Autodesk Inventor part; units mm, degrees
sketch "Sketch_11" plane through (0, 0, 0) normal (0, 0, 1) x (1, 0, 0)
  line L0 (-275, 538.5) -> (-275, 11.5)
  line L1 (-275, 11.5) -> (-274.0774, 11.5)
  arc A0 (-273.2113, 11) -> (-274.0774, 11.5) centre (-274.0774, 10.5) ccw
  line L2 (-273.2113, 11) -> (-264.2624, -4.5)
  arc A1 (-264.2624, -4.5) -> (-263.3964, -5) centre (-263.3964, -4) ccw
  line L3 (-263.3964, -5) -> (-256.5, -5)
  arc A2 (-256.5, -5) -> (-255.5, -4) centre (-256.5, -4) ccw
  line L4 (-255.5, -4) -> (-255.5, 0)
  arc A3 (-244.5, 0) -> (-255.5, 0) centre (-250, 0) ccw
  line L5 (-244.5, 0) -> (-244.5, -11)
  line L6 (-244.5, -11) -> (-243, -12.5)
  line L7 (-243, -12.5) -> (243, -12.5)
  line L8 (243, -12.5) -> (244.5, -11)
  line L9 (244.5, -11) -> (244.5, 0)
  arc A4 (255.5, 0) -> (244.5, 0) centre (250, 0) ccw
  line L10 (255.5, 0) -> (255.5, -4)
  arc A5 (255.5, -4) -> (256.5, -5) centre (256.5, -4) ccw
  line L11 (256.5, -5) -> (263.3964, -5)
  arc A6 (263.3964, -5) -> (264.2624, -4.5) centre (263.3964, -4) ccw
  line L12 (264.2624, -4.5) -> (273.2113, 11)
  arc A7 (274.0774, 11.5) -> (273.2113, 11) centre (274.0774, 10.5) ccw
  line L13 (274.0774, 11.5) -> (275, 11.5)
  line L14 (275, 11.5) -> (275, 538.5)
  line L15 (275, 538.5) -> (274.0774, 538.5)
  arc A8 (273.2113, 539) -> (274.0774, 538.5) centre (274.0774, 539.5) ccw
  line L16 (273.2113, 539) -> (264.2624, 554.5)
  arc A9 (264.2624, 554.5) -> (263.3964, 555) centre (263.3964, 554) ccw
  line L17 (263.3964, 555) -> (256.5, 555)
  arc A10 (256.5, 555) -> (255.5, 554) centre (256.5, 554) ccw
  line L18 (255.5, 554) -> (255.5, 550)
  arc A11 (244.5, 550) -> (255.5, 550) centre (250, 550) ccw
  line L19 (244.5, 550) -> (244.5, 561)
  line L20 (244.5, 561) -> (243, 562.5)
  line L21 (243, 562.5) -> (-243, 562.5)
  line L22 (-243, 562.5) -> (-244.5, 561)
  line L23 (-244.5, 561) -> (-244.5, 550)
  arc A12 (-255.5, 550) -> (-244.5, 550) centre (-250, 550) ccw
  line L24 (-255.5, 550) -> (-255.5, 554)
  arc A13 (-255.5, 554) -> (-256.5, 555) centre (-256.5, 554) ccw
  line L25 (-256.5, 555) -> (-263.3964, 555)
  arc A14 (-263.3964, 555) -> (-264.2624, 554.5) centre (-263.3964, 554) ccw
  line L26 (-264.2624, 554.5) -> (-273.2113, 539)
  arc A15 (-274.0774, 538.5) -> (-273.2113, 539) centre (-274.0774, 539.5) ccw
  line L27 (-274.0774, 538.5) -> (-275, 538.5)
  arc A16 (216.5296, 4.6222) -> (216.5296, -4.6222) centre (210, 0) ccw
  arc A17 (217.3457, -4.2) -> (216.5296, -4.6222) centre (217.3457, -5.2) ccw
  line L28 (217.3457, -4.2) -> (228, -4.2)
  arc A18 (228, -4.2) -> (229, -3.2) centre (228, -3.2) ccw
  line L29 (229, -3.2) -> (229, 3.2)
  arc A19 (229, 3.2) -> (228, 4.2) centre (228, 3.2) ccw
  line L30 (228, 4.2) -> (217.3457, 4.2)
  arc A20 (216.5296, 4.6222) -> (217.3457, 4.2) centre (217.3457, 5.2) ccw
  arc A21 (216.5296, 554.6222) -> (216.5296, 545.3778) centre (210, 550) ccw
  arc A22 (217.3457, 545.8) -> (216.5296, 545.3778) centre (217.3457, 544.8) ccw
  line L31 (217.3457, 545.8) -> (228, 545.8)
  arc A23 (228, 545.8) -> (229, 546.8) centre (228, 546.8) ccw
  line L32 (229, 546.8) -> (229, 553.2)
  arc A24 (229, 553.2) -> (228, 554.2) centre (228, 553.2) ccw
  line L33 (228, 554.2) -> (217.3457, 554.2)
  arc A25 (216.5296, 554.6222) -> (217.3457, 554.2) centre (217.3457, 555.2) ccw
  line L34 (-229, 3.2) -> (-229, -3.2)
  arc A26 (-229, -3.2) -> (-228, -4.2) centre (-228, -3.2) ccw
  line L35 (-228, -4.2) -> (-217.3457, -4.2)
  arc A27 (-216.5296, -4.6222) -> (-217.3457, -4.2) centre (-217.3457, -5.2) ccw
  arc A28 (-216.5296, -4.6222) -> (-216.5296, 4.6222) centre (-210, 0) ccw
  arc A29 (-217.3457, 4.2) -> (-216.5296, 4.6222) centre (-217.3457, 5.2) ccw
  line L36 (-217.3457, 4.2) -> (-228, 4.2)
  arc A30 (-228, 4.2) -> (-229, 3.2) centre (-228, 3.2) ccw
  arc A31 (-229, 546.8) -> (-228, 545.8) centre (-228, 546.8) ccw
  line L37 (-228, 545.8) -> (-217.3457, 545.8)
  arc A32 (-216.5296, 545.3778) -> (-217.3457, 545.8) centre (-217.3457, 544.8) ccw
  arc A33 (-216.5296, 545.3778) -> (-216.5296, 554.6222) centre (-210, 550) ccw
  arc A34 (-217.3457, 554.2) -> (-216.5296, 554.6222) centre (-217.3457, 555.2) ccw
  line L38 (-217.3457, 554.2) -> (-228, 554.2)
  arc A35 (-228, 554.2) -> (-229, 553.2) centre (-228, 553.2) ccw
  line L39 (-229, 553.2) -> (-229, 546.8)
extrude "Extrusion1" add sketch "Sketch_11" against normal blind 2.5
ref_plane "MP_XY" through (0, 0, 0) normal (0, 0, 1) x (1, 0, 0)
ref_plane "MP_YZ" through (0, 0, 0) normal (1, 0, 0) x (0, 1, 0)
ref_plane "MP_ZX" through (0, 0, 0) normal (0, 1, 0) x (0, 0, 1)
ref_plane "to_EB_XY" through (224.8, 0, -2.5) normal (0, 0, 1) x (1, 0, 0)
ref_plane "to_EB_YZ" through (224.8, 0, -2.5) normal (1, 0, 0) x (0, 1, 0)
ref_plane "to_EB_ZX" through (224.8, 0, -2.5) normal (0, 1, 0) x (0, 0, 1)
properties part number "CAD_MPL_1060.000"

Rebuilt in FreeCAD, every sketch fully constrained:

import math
import FreeCAD as App
import Part
import Sketcher
from FreeCAD import Vector
Q = App.Units.Quantity

doc = App.newDocument("Part")
params = doc.addObject("Spreadsheet::Sheet", "Params")
for row, (alias, value) in enumerate([
    ("sketch1_radius", "1 mm"),
    ("sketch1_radius2", "8 mm"),
    ("sketch1_radius3", "5.5 mm"),
    ("sketch1_width", "486 mm"),
    ("sketch1_height", "527 mm"),
    ("pad1_length", "2.5 mm"),
], start=1):
    params.set(f"A{row}", alias)
    params.set(f"B{row}", "=" + value)
    params.setAlias(f"B{row}", alias)

body = doc.addObject("PartDesign::Body", "Body")

# Sketch on XY plane
sketch1 = body.newObject("Sketcher::SketchObject", "Sketch")
sketch1.AttachmentSupport = (doc.getObject("XY_Plane"), [""])
sketch1.MapMode = "FlatFace"
sketch1.addGeometry([
    Part.LineSegment(Vector(-274.1, 538.5, 0), Vector(-275, 538.5, 0)),  # 0
    Part.LineSegment(Vector(-275, 538.5, 0), Vector(-275, 11.5, 0)),  # 1
    Part.LineSegment(Vector(-275, 11.5, 0), Vector(-274.1, 11.5, 0)),  # 2
    Part.ArcOfCircle(Part.Circle(Vector(-274.1, 10.5, 0), Vector(0, 0, 1), 1), math.radians(30), math.radians(90)),  # 3
    Part.LineSegment(Vector(-273.2, 11, 0), Vector(-264.3, -4.5, 0)),  # 4
    Part.ArcOfCircle(Part.Circle(Vector(-263.4, -4, 0), Vector(0, 0, 1), 1), math.radians(-150), math.radians(-90)),  # 5
    Part.LineSegment(Vector(-263.4, -5, 0), Vector(-256.5, -5, 0)),  # 6
    Part.ArcOfCircle(Part.Circle(Vector(-256.5, -4, 0), Vector(0, 0, 1), 1), math.radians(-90), math.radians(0)),  # 7
    Part.LineSegment(Vector(-255.5, -4, 0), Vector(-255.5, 0, 0)),  # 8
    Part.ArcOfCircle(Part.Circle(Vector(-250, 0, 0), Vector(0, 0, 1), 5.5), math.radians(0), math.radians(180)),  # 9
    Part.LineSegment(Vector(-244.5, 0, 0), Vector(-244.5, -11, 0)),  # 10
    Part.LineSegment(Vector(-244.5, -11, 0), Vector(-243, -12.5, 0)),  # 11
    Part.LineSegment(Vector(-243, -12.5, 0), Vector(243, -12.5, 0)),  # 12
    Part.LineSegment(Vector(243, -12.5, 0), Vector(244.5, -11, 0)),  # 13
    Part.LineSegment(Vector(244.5, -11, 0), Vector(244.5, 0, 0)),  # 14
    Part.ArcOfCircle(Part.Circle(Vector(250, 0, 0), Vector(0, 0, 1), 5.5), math.radians(0), math.radians(180)),  # 15
    Part.LineSegment(Vector(255.5, 0, 0), Vector(255.5, -4, 0)),  # 16
    Part.ArcOfCircle(Part.Circle(Vector(256.5, -4, 0), Vector(0, 0, 1), 1), math.radians(180), math.radians(270)),  # 17
    Part.LineSegment(Vector(256.5, -5, 0), Vector(263.4, -5, 0)),  # 18
    Part.ArcOfCircle(Part.Circle(Vector(263.4, -4, 0), Vector(0, 0, 1), 1), math.radians(-90), math.radians(-30)),  # 19
    Part.LineSegment(Vector(264.3, -4.5, 0), Vector(273.2, 11, 0)),  # 20
    Part.ArcOfCircle(Part.Circle(Vector(274.1, 10.5, 0), Vector(0, 0, 1), 1), math.radians(90), math.radians(150)),  # 21
    Part.LineSegment(Vector(274.1, 11.5, 0), Vector(275, 11.5, 0)),  # 22
    Part.LineSegment(Vector(275, 11.5, 0), Vector(275, 538.5, 0)),  # 23
    Part.LineSegment(Vector(275, 538.5, 0), Vector(274.1, 538.5, 0)),  # 24
    Part.ArcOfCircle(Part.Circle(Vector(274.1, 539.5, 0), Vector(0, 0, 1), 1), math.radians(-150), math.radians(-90)),  # 25
    Part.LineSegment(Vector(273.2, 539, 0), Vector(264.3, 554.5, 0)),  # 26
    Part.ArcOfCircle(Part.Circle(Vector(263.4, 554, 0), Vector(0, 0, 1), 1), math.radians(30), math.radians(90)),  # 27
    Part.LineSegment(Vector(263.4, 555, 0), Vector(256.5, 555, 0)),  # 28
    Part.ArcOfCircle(Part.Circle(Vector(256.5, 554, 0), Vector(0, 0, 1), 1), math.radians(90), math.radians(180)),  # 29
    Part.LineSegment(Vector(255.5, 554, 0), Vector(255.5, 550, 0)),  # 30
    Part.ArcOfCircle(Part.Circle(Vector(250, 550, 0), Vector(0, 0, 1), 5.5), math.radians(180), math.radians(360)),  # 31
    Part.LineSegment(Vector(244.5, 550, 0), Vector(244.5, 561, 0)),  # 32
    Part.LineSegment(Vector(244.5, 561, 0), Vector(243, 562.5, 0)),  # 33
    Part.LineSegment(Vector(243, 562.5, 0), Vector(-243, 562.5, 0)),  # 34
    Part.LineSegment(Vector(-243, 562.5, 0), Vector(-244.5, 561, 0)),  # 35
    Part.LineSegment(Vector(-244.5, 561, 0), Vector(-244.5, 550, 0)),  # 36
    Part.ArcOfCircle(Part.Circle(Vector(-250, 550, 0), Vector(0, 0, 1), 5.5), math.radians(180), math.radians(360)),  # 37
    Part.LineSegment(Vector(-255.5, 550, 0), Vector(-255.5, 554, 0)),  # 38
    Part.ArcOfCircle(Part.Circle(Vector(-256.5, 554, 0), Vector(0, 0, 1), 1), math.radians(0), math.radians(90)),  # 39
    Part.LineSegment(Vector(-256.5, 555, 0), Vector(-263.4, 555, 0)),  # 40
    Part.ArcOfCircle(Part.Circle(Vector(-263.4, 554, 0), Vector(0, 0, 1), 1), math.radians(90), math.radians(150)),  # 41
    Part.LineSegment(Vector(-264.3, 554.5, 0), Vector(-273.2, 539, 0)),  # 42
    Part.ArcOfCircle(Part.Circle(Vector(-274.1, 539.5, 0), Vector(0, 0, 1), 1), math.radians(-90), math.radians(-30)),  # 43
    Part.LineSegment(Vector(-229, -3.2, 0), Vector(-229, 3.2, 0)),  # 44
    Part.ArcOfCircle(Part.Circle(Vector(-228, 3.2, 0), Vector(0, 0, 1), 1), math.radians(90), math.radians(180)),  # 45
    Part.LineSegment(Vector(-228, 4.2, 0), Vector(-217.3, 4.2, 0)),  # 46
    Part.ArcOfCircle(Part.Circle(Vector(-217.3, 5.2, 0), Vector(0, 0, 1), 1), math.radians(-90), math.radians(-35)),  # 47
    Part.ArcOfCircle(Part.Circle(Vector(-210, 0, 0), Vector(0, 0, 1), 8), math.radians(-145), math.radians(145)),  # 48
    Part.ArcOfCircle(Part.Circle(Vector(-217.3, -5.2, 0), Vector(0, 0, 1), 1), math.radians(35), math.radians(90)),  # 49
    Part.LineSegment(Vector(-217.3, -4.2, 0), Vector(-228, -4.2, 0)),  # 50
    Part.ArcOfCircle(Part.Circle(Vector(-228, -3.2, 0), Vector(0, 0, 1), 1), math.radians(180), math.radians(270)),  # 51
    Part.ArcOfCircle(Part.Circle(Vector(210, 0, 0), Vector(0, 0, 1), 8), math.radians(35), math.radians(325)),  # 52
    Part.ArcOfCircle(Part.Circle(Vector(217.3, 5.2, 0), Vector(0, 0, 1), 1), math.radians(-145), math.radians(-90)),  # 53
    Part.LineSegment(Vector(217.3, 4.2, 0), Vector(228, 4.2, 0)),  # 54
    Part.ArcOfCircle(Part.Circle(Vector(228, 3.2, 0), Vector(0, 0, 1), 1), math.radians(0), math.radians(90)),  # 55
    Part.LineSegment(Vector(229, 3.2, 0), Vector(229, -3.2, 0)),  # 56
    Part.ArcOfCircle(Part.Circle(Vector(228, -3.2, 0), Vector(0, 0, 1), 1), math.radians(-90), math.radians(0)),  # 57
    Part.LineSegment(Vector(228, -4.2, 0), Vector(217.3, -4.2, 0)),  # 58
    Part.ArcOfCircle(Part.Circle(Vector(217.3, -5.2, 0), Vector(0, 0, 1), 1), math.radians(90), math.radians(145)),  # 59
    Part.ArcOfCircle(Part.Circle(Vector(-228, 546.8, 0), Vector(0, 0, 1), 1), math.radians(180), math.radians(270)),  # 60
    Part.LineSegment(Vector(-229, 546.8, 0), Vector(-229, 553.2, 0)),  # 61
    Part.ArcOfCircle(Part.Circle(Vector(-228, 553.2, 0), Vector(0, 0, 1), 1), math.radians(90), math.radians(180)),  # 62
    Part.LineSegment(Vector(-228, 554.2, 0), Vector(-217.3, 554.2, 0)),  # 63
    Part.ArcOfCircle(Part.Circle(Vector(-217.3, 555.2, 0), Vector(0, 0, 1), 1), math.radians(-90), math.radians(-35)),  # 64
    Part.ArcOfCircle(Part.Circle(Vector(-210, 550, 0), Vector(0, 0, 1), 8), math.radians(-145), math.radians(145)),  # 65
    Part.ArcOfCircle(Part.Circle(Vector(-217.3, 544.8, 0), Vector(0, 0, 1), 1), math.radians(35), math.radians(90)),  # 66
    Part.LineSegment(Vector(-217.3, 545.8, 0), Vector(-228, 545.8, 0)),  # 67
    Part.ArcOfCircle(Part.Circle(Vector(210, 550, 0), Vector(0, 0, 1), 8), math.radians(35), math.radians(325)),  # 68
    Part.ArcOfCircle(Part.Circle(Vector(217.3, 555.2, 0), Vector(0, 0, 1), 1), math.radians(-145), math.radians(-90)),  # 69
    Part.LineSegment(Vector(217.3, 554.2, 0), Vector(228, 554.2, 0)),  # 70
    Part.ArcOfCircle(Part.Circle(Vector(228, 553.2, 0), Vector(0, 0, 1), 1), math.radians(0), math.radians(90)),  # 71
    Part.LineSegment(Vector(229, 553.2, 0), Vector(229, 546.8, 0)),  # 72
    Part.ArcOfCircle(Part.Circle(Vector(228, 546.8, 0), Vector(0, 0, 1), 1), math.radians(-90), math.radians(0)),  # 73
    Part.LineSegment(Vector(228, 545.8, 0), Vector(217.3, 545.8, 0)),  # 74
    Part.ArcOfCircle(Part.Circle(Vector(217.3, 544.8, 0), Vector(0, 0, 1), 1), math.radians(90), math.radians(145)),  # 75
], False)
sketch1.addConstraint([
    Sketcher.Constraint("Coincident", 0, 2, 1, 1),
    Sketcher.Constraint("Coincident", 1, 2, 2, 1),
    Sketcher.Constraint("Tangent", 2, 2, 3, 2),
    Sketcher.Constraint("Tangent", 3, 1, 4, 1),
    Sketcher.Constraint("Tangent", 4, 2, 5, 1),
    Sketcher.Constraint("Tangent", 5, 2, 6, 1),
    Sketcher.Constraint("Tangent", 6, 2, 7, 1),
    Sketcher.Constraint("Tangent", 7, 2, 8, 1),
    Sketcher.Constraint("Tangent", 8, 2, 9, 2),
    Sketcher.Constraint("Tangent", 9, 1, 10, 1),
    Sketcher.Constraint("Coincident", 10, 2, 11, 1),
    Sketcher.Constraint("Coincident", 11, 2, 12, 1),
    Sketcher.Constraint("Coincident", 12, 2, 13, 1),
    Sketcher.Constraint("Coincident", 13, 2, 14, 1),
    Sketcher.Constraint("Tangent", 14, 2, 15, 2),
    Sketcher.Constraint("Tangent", 15, 1, 16, 1),
    Sketcher.Constraint("Tangent", 16, 2, 17, 1),
    Sketcher.Constraint("Tangent", 17, 2, 18, 1),
    Sketcher.Constraint("Tangent", 18, 2, 19, 1),
    Sketcher.Constraint("Tangent", 19, 2, 20, 1),
    Sketcher.Constraint("Tangent", 20, 2, 21, 2),
    Sketcher.Constraint("Tangent", 21, 1, 22, 1),
    Sketcher.Constraint("Coincident", 22, 2, 23, 1),
    Sketcher.Constraint("Coincident", 23, 2, 24, 1),
    Sketcher.Constraint("Tangent", 24, 2, 25, 2),
    Sketcher.Constraint("Tangent", 25, 1, 26, 1),
    Sketcher.Constraint("Tangent", 26, 2, 27, 1),
    Sketcher.Constraint("Tangent", 27, 2, 28, 1),
    Sketcher.Constraint("Tangent", 28, 2, 29, 1),
    Sketcher.Constraint("Tangent", 29, 2, 30, 1),
    Sketcher.Constraint("Tangent", 30, 2, 31, 2),
    Sketcher.Constraint("Tangent", 31, 1, 32, 1),
    Sketcher.Constraint("Coincident", 32, 2, 33, 1),
    Sketcher.Constraint("Coincident", 33, 2, 34, 1),
    Sketcher.Constraint("Coincident", 34, 2, 35, 1),
    Sketcher.Constraint("Coincident", 35, 2, 36, 1),
    Sketcher.Constraint("Tangent", 36, 2, 37, 2),
    Sketcher.Constraint("Tangent", 37, 1, 38, 1),
    Sketcher.Constraint("Tangent", 38, 2, 39, 1),
    Sketcher.Constraint("Tangent", 39, 2, 40, 1),
    Sketcher.Constraint("Tangent", 40, 2, 41, 1),
    Sketcher.Constraint("Tangent", 41, 2, 42, 1),
    Sketcher.Constraint("Tangent", 42, 2, 43, 2),
    Sketcher.Constraint("Tangent", 43, 1, 0, 1),
    Sketcher.Constraint("Tangent", 44, 2, 45, 2),
    Sketcher.Constraint("Tangent", 45, 1, 46, 1),
    Sketcher.Constraint("Tangent", 46, 2, 47, 1),
    Sketcher.Constraint("Tangent", 47, 2, 48, 2),
    Sketcher.Constraint("Tangent", 48, 1, 49, 1),
    Sketcher.Constraint("Tangent", 49, 2, 50, 1),
    Sketcher.Constraint("Tangent", 50, 2, 51, 2),
    Sketcher.Constraint("Tangent", 51, 1, 44, 1),
    Sketcher.Constraint("Tangent", 52, 1, 53, 1),
    Sketcher.Constraint("Tangent", 53, 2, 54, 1),
    Sketcher.Constraint("Tangent", 54, 2, 55, 2),
    Sketcher.Constraint("Tangent", 55, 1, 56, 1),
    Sketcher.Constraint("Tangent", 56, 2, 57, 2),
    Sketcher.Constraint("Tangent", 57, 1, 58, 1),
    Sketcher.Constraint("Tangent", 58, 2, 59, 1),
    Sketcher.Constraint("Tangent", 59, 2, 52, 2),
    Sketcher.Constraint("Tangent", 60, 1, 61, 1),
    Sketcher.Constraint("Tangent", 61, 2, 62, 2),
    Sketcher.Constraint("Tangent", 62, 1, 63, 1),
    Sketcher.Constraint("Tangent", 63, 2, 64, 1),
    Sketcher.Constraint("Tangent", 64, 2, 65, 2),
    Sketcher.Constraint("Tangent", 65, 1, 66, 1),
    Sketcher.Constraint("Tangent", 66, 2, 67, 1),
    Sketcher.Constraint("Tangent", 67, 2, 60, 2),
    Sketcher.Constraint("Tangent", 68, 1, 69, 1),
    Sketcher.Constraint("Tangent", 69, 2, 70, 1),
    Sketcher.Constraint("Tangent", 70, 2, 71, 2),
    Sketcher.Constraint("Tangent", 71, 1, 72, 1),
    Sketcher.Constraint("Tangent", 72, 2, 73, 2),
    Sketcher.Constraint("Tangent", 73, 1, 74, 1),
    Sketcher.Constraint("Tangent", 74, 2, 75, 1),
    Sketcher.Constraint("Tangent", 75, 2, 68, 2),
    Sketcher.Constraint("Horizontal", 0),
    Sketcher.Constraint("Vertical", 1),
    Sketcher.Constraint("Horizontal", 2),
    Sketcher.Constraint("Horizontal", 6),
    Sketcher.Constraint("Vertical", 8),
    Sketcher.Constraint("Vertical", 10),
    Sketcher.Constraint("Horizontal", 12),
    Sketcher.Constraint("Vertical", 14),
    Sketcher.Constraint("Vertical", 16),
    Sketcher.Constraint("Horizontal", 18),
    Sketcher.Constraint("Horizontal", 22),
    Sketcher.Constraint("Vertical", 23),
    Sketcher.Constraint("Horizontal", 24),
    Sketcher.Constraint("Horizontal", 28),
    Sketcher.Constraint("Vertical", 30),
    Sketcher.Constraint("Vertical", 32),
    Sketcher.Constraint("Horizontal", 34),
    Sketcher.Constraint("Vertical", 36),
    Sketcher.Constraint("Vertical", 38),
    Sketcher.Constraint("Horizontal", 40),
    Sketcher.Constraint("Vertical", 44),
    Sketcher.Constraint("Horizontal", 46),
    Sketcher.Constraint("Horizontal", 50),
    Sketcher.Constraint("Horizontal", 54),
    Sketcher.Constraint("Vertical", 56),
    Sketcher.Constraint("Horizontal", 58),
    Sketcher.Constraint("Vertical", 61),
    Sketcher.Constraint("Horizontal", 63),
    Sketcher.Constraint("Horizontal", 67),
    Sketcher.Constraint("Horizontal", 70),
    Sketcher.Constraint("Vertical", 72),
    Sketcher.Constraint("Horizontal", 74),
    Sketcher.Constraint("Equal", 3, 5),
    Sketcher.Constraint("Equal", 5, 7),
    Sketcher.Constraint("Equal", 9, 15),
    Sketcher.Constraint("Equal", 7, 17),
    Sketcher.Constraint("Equal", 17, 19),
    Sketcher.Constraint("Equal", 19, 21),
    Sketcher.Constraint("Equal", 21, 25),
    Sketcher.Constraint("Equal", 25, 27),
    Sketcher.Constraint("Equal", 27, 29),
    Sketcher.Constraint("Equal", 15, 31),
    Sketcher.Constraint("Equal", 31, 37),
    Sketcher.Constraint("Equal", 29, 39),
    Sketcher.Constraint("Equal", 39, 41),
    Sketcher.Constraint("Equal", 41, 43),
    Sketcher.Constraint("Equal", 43, 45),
    Sketcher.Constraint("Equal", 45, 47),
    Sketcher.Constraint("Equal", 47, 49),
    Sketcher.Constraint("Equal", 49, 51),
    Sketcher.Constraint("Equal", 48, 52),
    Sketcher.Constraint("Equal", 51, 53),
    Sketcher.Constraint("Equal", 53, 55),
    Sketcher.Constraint("Equal", 55, 57),
    Sketcher.Constraint("Equal", 57, 59),
    Sketcher.Constraint("Equal", 59, 60),
    Sketcher.Constraint("Equal", 60, 62),
    Sketcher.Constraint("Equal", 62, 64),
    Sketcher.Constraint("Equal", 52, 65),
    Sketcher.Constraint("Equal", 64, 66),
    Sketcher.Constraint("Equal", 65, 68),
    Sketcher.Constraint("Equal", 66, 69),
    Sketcher.Constraint("Equal", 69, 71),
    Sketcher.Constraint("Equal", 71, 73),
    Sketcher.Constraint("Equal", 73, 75),
    Sketcher.Constraint("Symmetric", 9, 3, 15, 3, -1, 1),
    Sketcher.Constraint("Symmetric", 48, 3, 52, 3, -1, 1),
    Sketcher.Constraint("Symmetric", 51, 3, 55, 3, -1, 1),
    Sketcher.Constraint("Symmetric", 5, 3, 19, 3, -2),
    Sketcher.Constraint("Symmetric", 3, 3, 21, 3, -2),
    Sketcher.Constraint("Symmetric", 31, 3, 37, 3, -2),
    Sketcher.Constraint("Symmetric", 27, 3, 41, 3, -2),
    Sketcher.Constraint("Symmetric", 25, 3, 43, 3, -2),
    Sketcher.Constraint("Symmetric", 47, 3, 53, 3, -2),
    Sketcher.Constraint("Symmetric", 65, 3, 68, 3, -2),
    Sketcher.Constraint("Symmetric", 62, 3, 71, 3, -2),
    Sketcher.Constraint("PointOnObject", 9, 3, -1),
    Sketcher.Constraint("Perpendicular", 11, 13),
    Sketcher.Constraint("Parallel", 4, 26),
    Sketcher.Constraint("Perpendicular", 13, 33),
    Sketcher.Constraint("Perpendicular", 33, 35),
    Sketcher.Constraint("Horizontal", 51, 3, 57, 3),
    Sketcher.Constraint("Horizontal", 37, 3, 65, 3),
    Sketcher.Constraint("Horizontal", 60, 3, 73, 3),
    Sketcher.Constraint("Horizontal", 10, 2, 13, 2),
    Sketcher.Constraint("Horizontal", 32, 2, 35, 2),
    Sketcher.Constraint("Vertical", 21, 3, 25, 3),
    Sketcher.Constraint("Vertical", 19, 3, 27, 3),
    Sketcher.Constraint("Vertical", 17, 3, 29, 3),
    Sketcher.Constraint("Vertical", 51, 3, 60, 3),
    Sketcher.Constraint("Vertical", 49, 3, 64, 3),
    Sketcher.Constraint("Vertical", 48, 3, 65, 3),
    Sketcher.Constraint("Vertical", 64, 3, 66, 3),
    Sketcher.Constraint("Vertical", 12, 2, 33, 2),
    Sketcher.Constraint("Vertical", 11, 2, 34, 2),
    Sketcher.Constraint("Equal", 2, 22),
    Sketcher.Constraint("Equal", 16, 30),
    Sketcher.Constraint("Equal", 14, 32),
    Sketcher.Constraint("Radius", 3, 1.0),
    Sketcher.Constraint("Radius", 48, 8.0),
    Sketcher.Constraint("Radius", 9, 5.5),
    Sketcher.Constraint("DistanceX", 12, 1, 12, 2, 486.0),
    Sketcher.Constraint("DistanceY", 1, 2, 1, 1, 527.0),
    Sketcher.Constraint("DistanceY", 8, 1, 8, 2, 4.0),
    Sketcher.Constraint("DistanceY", 10, 2, 10, 1, 11.0),
    Sketcher.Constraint("Angle", 4, Q("-60 deg")),
    Sketcher.Constraint("DistanceY", 44, 1, 44, 2, 6.4),
    Sketcher.Constraint("DistanceX", 9, 3, -1, 1, 250.0),
    Sketcher.Constraint("DistanceY", -1, 1, 27, 3, 554.0),
    Sketcher.Constraint("DistanceX", 45, 3, -1, 1, 228.0),
    Sketcher.Constraint("DistanceX", 48, 3, -1, 1, 210.0),
    Sketcher.Constraint("DistanceX", 0, 2, -1, 1, 275.0),
    Sketcher.Constraint("DistanceX", 0, 2, 0, 1, 0.9226),
])
sketch1.setExpression("Constraints[174]", "Params.sketch1_radius")
sketch1.setExpression("Constraints[175]", "Params.sketch1_radius2")
sketch1.setExpression("Constraints[176]", "Params.sketch1_radius3")
sketch1.setExpression("Constraints[177]", "Params.sketch1_width")
sketch1.setExpression("Constraints[178]", "Params.sketch1_height")
pad1 = body.newObject("PartDesign::Pad", "Pad")
pad1.Profile = sketch1
pad1.setExpression("Length", "Params.pad1_length")
pad1.Reversed = True

doc.recompute()
